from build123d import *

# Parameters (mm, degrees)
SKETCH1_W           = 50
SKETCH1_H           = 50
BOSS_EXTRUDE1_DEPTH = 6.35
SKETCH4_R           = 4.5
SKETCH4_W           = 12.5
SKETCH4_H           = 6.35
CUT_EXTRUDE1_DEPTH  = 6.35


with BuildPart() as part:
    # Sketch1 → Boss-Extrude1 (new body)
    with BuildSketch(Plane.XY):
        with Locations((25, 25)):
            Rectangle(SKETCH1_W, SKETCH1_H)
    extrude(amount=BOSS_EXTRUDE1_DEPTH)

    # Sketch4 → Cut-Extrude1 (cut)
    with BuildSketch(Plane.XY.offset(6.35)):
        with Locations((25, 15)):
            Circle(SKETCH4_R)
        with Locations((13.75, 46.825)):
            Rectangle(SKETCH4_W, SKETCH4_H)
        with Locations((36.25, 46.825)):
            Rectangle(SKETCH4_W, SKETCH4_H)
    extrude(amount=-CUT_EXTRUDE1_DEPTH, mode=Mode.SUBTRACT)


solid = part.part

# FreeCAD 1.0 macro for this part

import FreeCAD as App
import Part
import Sketcher

V = App.Vector


def add_polygon(sketch, points):
    """Adds a closed chain of lines whose ends are joined by coincident constraints."""
    first, n = sketch.GeometryCount, len(points)
    for a, b in zip(points, points[1:] + points[:1]):
        sketch.addGeometry(Part.LineSegment(App.Vector(*a, 0), App.Vector(*b, 0)), False)
    for i in range(n):
        sketch.addConstraint(Sketcher.Constraint("Coincident", first + i, 2, first + (i + 1) % n, 1))

doc = App.newDocument("Part")
body = doc.addObject("PartDesign::Body", "Body")

sketch1 = body.newObject("Sketcher::SketchObject", "Sketch")
sketch1.AttachmentSupport = (doc.getObject("XY_Plane"), [""])
sketch1.MapMode = "FlatFace"
add_polygon(sketch1, [(0, 50), (0, 0), (50, 0), (50, 50)])
sketch1.addConstraint([
    Sketcher.Constraint("Vertical", 0),
    Sketcher.Constraint("Horizontal", 1),
    Sketcher.Constraint("Vertical", 2),
    Sketcher.Constraint("Horizontal", 3),
    Sketcher.Constraint("Coincident", 0, 2, -1, 1),
    Sketcher.Constraint("Equal", 3, 0),
    Sketcher.Constraint("DistanceX", 1, 1, 1, 2, 50.0),
])
pad1 = body.newObject("PartDesign::Pad", "Pad")
pad1.Profile = sketch1
pad1.Length = 6.35

sketch2 = body.newObject("Sketcher::SketchObject", "Sketch001")
sketch2.AttachmentSupport = (doc.getObject("XY_Plane"), [""])
sketch2.MapMode = "FlatFace"
sketch2.AttachmentOffset = App.Placement(V(0, 0, 6.35), App.Rotation())
sketch2.addGeometry(Part.Circle(V(25, 15, 0), V(0, 0, 1), 4.5), False)
add_polygon(sketch2, [(7.5, 50), (7.5, 43.6), (20, 43.6), (20, 50)])
add_polygon(sketch2, [(30, 50), (30, 43.6), (42.5, 43.6), (42.5, 50)])
sketch2.addConstraint([
    Sketcher.Constraint("Vertical", 1),
    Sketcher.Constraint("Horizontal", 2),
    Sketcher.Constraint("Vertical", 3),
    Sketcher.Constraint("Horizontal", 4),
    Sketcher.Constraint("Vertical", 5),
    Sketcher.Constraint("Horizontal", 6),
    Sketcher.Constraint("Vertical", 7),
    Sketcher.Constraint("Horizontal", 8),
    Sketcher.Constraint("Horizontal", 2, 2, 5, 2),
    Sketcher.Constraint("Horizontal", 4, 2, 7, 2),
    Sketcher.Constraint("Equal", 4, 6),
    Sketcher.Constraint("Diameter", 0, 9.0),
    Sketcher.Constraint("DistanceX", 2, 1, 2, 2, 12.5),
    Sketcher.Constraint("DistanceX", -1, 1, 0, 3, 25.0),
    Sketcher.Constraint("DistanceY", -1, 1, 0, 3, 15.0),
    Sketcher.Constraint("DistanceX", -1, 1, 2, 2, 20.0),
    Sketcher.Constraint("DistanceY", -1, 1, 3, 2, 50.0),
    Sketcher.Constraint("DistanceX", -1, 1, 5, 2, 30.0),
    Sketcher.Constraint("DistanceY", 1, 2, 1, 1, 6.35),
])
pocket1 = body.newObject("PartDesign::Pocket", "Pocket")
pocket1.Profile = sketch2
pocket1.Length = 6.35

doc.recompute()
